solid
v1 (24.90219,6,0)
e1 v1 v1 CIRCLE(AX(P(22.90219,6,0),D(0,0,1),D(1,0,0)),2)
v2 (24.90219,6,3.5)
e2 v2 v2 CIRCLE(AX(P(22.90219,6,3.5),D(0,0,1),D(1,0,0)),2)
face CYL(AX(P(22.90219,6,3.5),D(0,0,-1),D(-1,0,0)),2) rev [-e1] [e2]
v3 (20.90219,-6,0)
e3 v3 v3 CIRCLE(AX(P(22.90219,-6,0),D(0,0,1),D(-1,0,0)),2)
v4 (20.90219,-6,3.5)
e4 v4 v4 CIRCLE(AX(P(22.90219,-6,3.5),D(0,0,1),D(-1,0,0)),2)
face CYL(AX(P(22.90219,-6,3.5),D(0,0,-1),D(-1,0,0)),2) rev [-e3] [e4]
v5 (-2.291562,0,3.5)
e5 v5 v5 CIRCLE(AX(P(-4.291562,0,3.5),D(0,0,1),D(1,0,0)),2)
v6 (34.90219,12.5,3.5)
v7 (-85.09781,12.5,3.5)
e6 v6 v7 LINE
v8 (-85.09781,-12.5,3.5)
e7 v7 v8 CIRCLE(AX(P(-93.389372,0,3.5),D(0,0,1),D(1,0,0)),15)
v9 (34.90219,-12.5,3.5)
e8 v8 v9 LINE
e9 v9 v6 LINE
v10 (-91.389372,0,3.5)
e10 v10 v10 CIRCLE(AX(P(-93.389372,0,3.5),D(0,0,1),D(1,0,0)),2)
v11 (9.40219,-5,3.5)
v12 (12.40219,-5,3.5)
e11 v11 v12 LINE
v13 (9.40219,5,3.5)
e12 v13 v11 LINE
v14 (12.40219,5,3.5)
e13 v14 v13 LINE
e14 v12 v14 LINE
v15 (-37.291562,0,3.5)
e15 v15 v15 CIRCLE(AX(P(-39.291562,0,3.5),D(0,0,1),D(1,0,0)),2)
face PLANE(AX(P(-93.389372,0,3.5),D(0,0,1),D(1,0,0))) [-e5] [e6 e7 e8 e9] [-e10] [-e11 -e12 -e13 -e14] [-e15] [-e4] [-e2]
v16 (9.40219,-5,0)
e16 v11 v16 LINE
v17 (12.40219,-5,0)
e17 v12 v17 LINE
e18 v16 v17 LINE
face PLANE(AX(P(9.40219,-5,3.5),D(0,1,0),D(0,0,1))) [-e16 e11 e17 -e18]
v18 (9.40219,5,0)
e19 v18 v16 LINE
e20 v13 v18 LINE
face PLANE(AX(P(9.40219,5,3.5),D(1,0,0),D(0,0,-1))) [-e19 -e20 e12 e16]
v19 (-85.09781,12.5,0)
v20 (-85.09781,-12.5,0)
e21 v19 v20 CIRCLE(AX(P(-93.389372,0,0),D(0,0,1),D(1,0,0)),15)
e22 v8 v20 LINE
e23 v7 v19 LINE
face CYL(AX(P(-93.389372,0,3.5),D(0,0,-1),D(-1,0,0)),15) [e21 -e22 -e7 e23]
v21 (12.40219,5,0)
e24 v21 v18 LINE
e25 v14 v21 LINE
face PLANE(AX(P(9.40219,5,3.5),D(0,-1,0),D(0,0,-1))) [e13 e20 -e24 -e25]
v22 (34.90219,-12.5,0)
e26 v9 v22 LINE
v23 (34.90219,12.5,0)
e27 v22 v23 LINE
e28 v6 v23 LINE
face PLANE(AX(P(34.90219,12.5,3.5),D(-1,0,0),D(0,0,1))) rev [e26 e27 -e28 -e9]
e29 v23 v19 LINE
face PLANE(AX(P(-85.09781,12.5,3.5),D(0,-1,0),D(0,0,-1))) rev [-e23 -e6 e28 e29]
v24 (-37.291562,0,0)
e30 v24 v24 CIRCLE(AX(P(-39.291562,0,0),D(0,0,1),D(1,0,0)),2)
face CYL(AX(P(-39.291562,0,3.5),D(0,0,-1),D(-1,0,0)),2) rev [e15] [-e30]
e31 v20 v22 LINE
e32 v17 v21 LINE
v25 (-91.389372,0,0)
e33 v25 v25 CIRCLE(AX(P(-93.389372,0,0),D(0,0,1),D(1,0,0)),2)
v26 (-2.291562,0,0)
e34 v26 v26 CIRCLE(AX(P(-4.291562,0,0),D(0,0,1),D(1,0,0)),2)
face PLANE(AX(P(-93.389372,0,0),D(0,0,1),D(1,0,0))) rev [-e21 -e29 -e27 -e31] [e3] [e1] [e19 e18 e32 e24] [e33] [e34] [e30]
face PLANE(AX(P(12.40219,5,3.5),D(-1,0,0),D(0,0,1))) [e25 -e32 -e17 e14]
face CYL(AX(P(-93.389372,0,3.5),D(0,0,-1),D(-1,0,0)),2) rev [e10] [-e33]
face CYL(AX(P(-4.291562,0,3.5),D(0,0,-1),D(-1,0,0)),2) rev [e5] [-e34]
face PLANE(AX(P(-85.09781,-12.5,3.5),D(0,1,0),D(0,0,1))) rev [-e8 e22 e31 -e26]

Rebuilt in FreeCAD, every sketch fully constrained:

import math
import FreeCAD as App
import Part
import Sketcher
from FreeCAD import Vector

doc = App.newDocument("Part")
params = doc.addObject("Spreadsheet::Sheet", "Params")
for row, (alias, value) in enumerate([
    ("sketch1_diameter", "4 mm"),
    ("sketch1_radius", "15 mm"),
    ("sketch1_width", "120 mm"),
    ("sketch1_width2", "3 mm"),
    ("sketch1_height", "25 mm"),
    ("pad1_length", "3.5 mm"),
], start=1):
    params.set(f"A{row}", alias)
    params.set(f"B{row}", "=" + value)
    params.setAlias(f"B{row}", alias)

body = doc.addObject("PartDesign::Body", "Body")

sketch1 = doc.addObject("Sketcher::SketchObject", "Sketch")
body.addObject(sketch1)
sketch1.AttachmentSupport = (doc.XY_Plane, [""])
sketch1.MapMode = "FlatFace"
sketch1.addGeometry([
    Part.LineSegment(Vector(34.9, -12.5, 0), Vector(34.9, 12.5, 0)),
    Part.LineSegment(Vector(34.9, 12.5, 0), Vector(-85.1, 12.5, 0)),
    Part.ArcOfCircle(Part.Circle(Vector(-93.4, 0, 0), Vector(0, 0, 1), 15), math.radians(56), math.radians(304)),
    Part.LineSegment(Vector(-85.1, -12.5, 0), Vector(34.9, -12.5, 0)),
    Part.Circle(Vector(22.9, -6, 0), Vector(0, 0, 1), 2),
    Part.LineSegment(Vector(9.4, -5, 0), Vector(9.4, 5, 0)),
    Part.LineSegment(Vector(9.4, 5, 0), Vector(12.4, 5, 0)),
    Part.LineSegment(Vector(12.4, 5, 0), Vector(12.4, -5, 0)),
    Part.LineSegment(Vector(12.4, -5, 0), Vector(9.4, -5, 0)),
    Part.Circle(Vector(-4.3, 0, 0), Vector(0, 0, 1), 2),
    Part.Circle(Vector(22.9, 6, 0), Vector(0, 0, 1), 2),
    Part.Circle(Vector(-39.3, 0, 0), Vector(0, 0, 1), 2),
    Part.Circle(Vector(-93.4, 0, 0), Vector(0, 0, 1), 2),
], False)
sketch1.addConstraint([
    Sketcher.Constraint("Coincident", 0, 2, 1, 1),
    Sketcher.Constraint("Coincident", 1, 2, 2, 1),
    Sketcher.Constraint("Coincident", 2, 2, 3, 1),
    Sketcher.Constraint("Coincident", 3, 2, 0, 1),
    Sketcher.Constraint("Coincident", 5, 2, 6, 1),
    Sketcher.Constraint("Coincident", 6, 2, 7, 1),
    Sketcher.Constraint("Coincident", 7, 2, 8, 1),
    Sketcher.Constraint("Coincident", 8, 2, 5, 1),
    Sketcher.Constraint("Vertical", 0),
    Sketcher.Constraint("Horizontal", 1),
    Sketcher.Constraint("Horizontal", 3),
    Sketcher.Constraint("Vertical", 5),
    Sketcher.Constraint("Horizontal", 6),
    Sketcher.Constraint("Vertical", 7),
    Sketcher.Constraint("Horizontal", 8),
    Sketcher.Constraint("Coincident", 12, 3, 2, 3),
    Sketcher.Constraint("Equal", 4, 9),
    Sketcher.Constraint("Equal", 9, 10),
    Sketcher.Constraint("Equal", 10, 11),
    Sketcher.Constraint("Equal", 11, 12),
    Sketcher.Constraint("Symmetric", 4, 3, 10, 3, -1),
    Sketcher.Constraint("Symmetric", 1, 2, 2, 2, -1),
    Sketcher.Constraint("PointOnObject", 9, 3, -1),
    Sketcher.Constraint("PointOnObject", 11, 3, -1),
    Sketcher.Constraint("Diameter", 4, 4.0),
    Sketcher.Constraint("Radius", 2, 15.0),
    Sketcher.Constraint("DistanceX", 1, 2, 1, 1, 120.0),
    Sketcher.Constraint("DistanceX", 6, 1, 6, 2, 3.0),
    Sketcher.Constraint("DistanceY", 0, 1, 0, 2, 25.0),
    Sketcher.Constraint("DistanceY", 5, 1, 5, 2, 10.0),
    Sketcher.Constraint("DistanceY", 4, 3, -1, 1, 6.0),
    Sketcher.Constraint("DistanceY", -1, 1, 5, 2, 5.0),
    Sketcher.Constraint("DistanceX", 11, 3, 9, 3, 35.0),
    Sketcher.Constraint("DistanceX", 10, 3, 0, 2, 12.0),
    Sketcher.Constraint("DistanceX", 5, 2, 10, 3, 13.5),
    Sketcher.Constraint("DistanceX", -1, 1, 4, 3, 22.90219),
    Sketcher.Constraint("DistanceX", 9, 3, -1, 1, 4.291562),
])
sketch1.setExpression("Constraints[24]", "Params.sketch1_diameter")
sketch1.setExpression("Constraints[25]", "Params.sketch1_radius")
sketch1.setExpression("Constraints[26]", "Params.sketch1_width")
sketch1.setExpression("Constraints[27]", "Params.sketch1_width2")
sketch1.setExpression("Constraints[28]", "Params.sketch1_height")
pad1 = doc.addObject("PartDesign::Pad", "Pad")
body.addObject(pad1)
pad1.Profile = sketch1
pad1.setExpression("Length", "Params.pad1_length")

doc.recompute()
